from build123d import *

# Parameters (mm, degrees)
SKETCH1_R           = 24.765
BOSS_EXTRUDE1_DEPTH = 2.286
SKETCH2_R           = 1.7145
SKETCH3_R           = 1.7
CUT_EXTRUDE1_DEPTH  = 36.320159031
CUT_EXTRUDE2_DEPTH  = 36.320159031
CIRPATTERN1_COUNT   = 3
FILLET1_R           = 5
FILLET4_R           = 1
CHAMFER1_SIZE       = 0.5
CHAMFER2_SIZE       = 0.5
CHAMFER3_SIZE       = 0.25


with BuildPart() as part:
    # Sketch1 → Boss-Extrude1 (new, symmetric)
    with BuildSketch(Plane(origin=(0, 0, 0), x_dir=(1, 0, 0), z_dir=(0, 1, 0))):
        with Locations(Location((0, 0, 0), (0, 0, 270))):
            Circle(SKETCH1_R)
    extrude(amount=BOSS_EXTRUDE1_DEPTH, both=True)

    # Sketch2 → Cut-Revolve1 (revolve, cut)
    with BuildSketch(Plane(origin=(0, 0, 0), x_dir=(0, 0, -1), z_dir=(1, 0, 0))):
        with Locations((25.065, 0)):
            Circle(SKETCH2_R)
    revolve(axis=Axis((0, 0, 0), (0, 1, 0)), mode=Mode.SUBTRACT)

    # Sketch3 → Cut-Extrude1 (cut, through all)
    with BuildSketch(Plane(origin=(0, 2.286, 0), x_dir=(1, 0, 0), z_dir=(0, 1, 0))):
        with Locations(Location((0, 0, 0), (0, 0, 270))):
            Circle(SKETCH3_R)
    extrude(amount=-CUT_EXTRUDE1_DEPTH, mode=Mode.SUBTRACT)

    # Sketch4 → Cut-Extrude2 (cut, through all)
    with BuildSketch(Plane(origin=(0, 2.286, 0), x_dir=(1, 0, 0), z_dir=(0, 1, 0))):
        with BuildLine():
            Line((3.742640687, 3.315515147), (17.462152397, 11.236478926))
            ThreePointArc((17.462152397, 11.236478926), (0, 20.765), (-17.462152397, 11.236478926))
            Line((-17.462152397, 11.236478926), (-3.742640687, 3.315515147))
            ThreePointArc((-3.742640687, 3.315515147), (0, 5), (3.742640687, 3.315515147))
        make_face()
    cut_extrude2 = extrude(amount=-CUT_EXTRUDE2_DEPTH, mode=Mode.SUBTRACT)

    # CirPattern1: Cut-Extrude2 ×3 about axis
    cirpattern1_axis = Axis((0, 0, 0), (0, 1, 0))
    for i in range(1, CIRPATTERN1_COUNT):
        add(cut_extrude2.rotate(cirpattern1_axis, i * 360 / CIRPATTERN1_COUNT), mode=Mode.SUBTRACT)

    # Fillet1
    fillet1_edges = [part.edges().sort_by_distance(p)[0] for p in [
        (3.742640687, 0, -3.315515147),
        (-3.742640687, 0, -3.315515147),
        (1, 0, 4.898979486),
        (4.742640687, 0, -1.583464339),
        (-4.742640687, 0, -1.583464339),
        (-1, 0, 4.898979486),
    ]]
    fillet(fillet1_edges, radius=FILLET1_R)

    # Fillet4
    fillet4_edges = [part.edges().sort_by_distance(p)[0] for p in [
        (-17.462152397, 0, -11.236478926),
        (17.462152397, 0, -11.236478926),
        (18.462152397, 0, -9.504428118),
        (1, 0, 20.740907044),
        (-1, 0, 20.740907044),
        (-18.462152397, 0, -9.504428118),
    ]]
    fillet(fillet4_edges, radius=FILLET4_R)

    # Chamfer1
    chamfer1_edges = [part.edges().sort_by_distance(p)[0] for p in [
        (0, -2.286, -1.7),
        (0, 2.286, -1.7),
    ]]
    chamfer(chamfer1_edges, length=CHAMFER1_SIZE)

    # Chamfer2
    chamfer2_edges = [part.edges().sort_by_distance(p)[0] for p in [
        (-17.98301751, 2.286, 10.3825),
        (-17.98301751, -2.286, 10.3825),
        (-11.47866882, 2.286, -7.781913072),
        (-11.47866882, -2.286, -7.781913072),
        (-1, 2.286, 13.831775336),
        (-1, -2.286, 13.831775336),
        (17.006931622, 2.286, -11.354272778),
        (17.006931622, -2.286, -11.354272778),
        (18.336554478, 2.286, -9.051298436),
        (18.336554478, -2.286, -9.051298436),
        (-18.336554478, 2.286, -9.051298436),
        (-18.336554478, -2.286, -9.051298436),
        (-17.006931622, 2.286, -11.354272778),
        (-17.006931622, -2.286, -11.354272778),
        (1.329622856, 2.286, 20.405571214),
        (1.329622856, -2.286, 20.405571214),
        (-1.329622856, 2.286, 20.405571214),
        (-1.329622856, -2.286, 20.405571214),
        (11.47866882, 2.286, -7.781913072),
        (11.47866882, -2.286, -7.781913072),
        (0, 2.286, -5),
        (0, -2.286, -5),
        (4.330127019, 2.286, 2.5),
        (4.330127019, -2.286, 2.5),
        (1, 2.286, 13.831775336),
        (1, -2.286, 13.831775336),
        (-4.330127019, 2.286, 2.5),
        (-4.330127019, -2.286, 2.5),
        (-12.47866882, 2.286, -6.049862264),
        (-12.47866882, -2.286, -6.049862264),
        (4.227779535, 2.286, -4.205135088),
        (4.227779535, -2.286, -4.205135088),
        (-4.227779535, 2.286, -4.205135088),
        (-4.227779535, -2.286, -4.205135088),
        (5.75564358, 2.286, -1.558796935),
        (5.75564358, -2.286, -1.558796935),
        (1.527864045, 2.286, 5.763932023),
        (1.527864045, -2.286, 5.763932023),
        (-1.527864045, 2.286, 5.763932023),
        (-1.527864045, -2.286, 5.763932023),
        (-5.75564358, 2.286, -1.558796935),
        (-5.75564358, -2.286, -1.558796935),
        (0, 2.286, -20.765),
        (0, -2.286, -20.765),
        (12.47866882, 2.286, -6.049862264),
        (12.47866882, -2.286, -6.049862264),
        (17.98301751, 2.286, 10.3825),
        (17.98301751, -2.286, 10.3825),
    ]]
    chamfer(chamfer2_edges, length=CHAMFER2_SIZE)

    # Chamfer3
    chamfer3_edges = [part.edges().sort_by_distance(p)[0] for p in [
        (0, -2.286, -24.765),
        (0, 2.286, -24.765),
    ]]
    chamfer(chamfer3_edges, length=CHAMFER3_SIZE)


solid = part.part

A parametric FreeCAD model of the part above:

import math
import FreeCAD as App
import Part
import Sketcher
Q = App.Units.Quantity


def edges_at(feature, points):
    """Names of the edges that pass closest to the given points."""
    edges = feature.Shape.Edges
    near = lambda p: min(range(len(edges)), key=lambda i: edges[i].distToShape(Part.Vertex(*p))[0])
    return sorted({f"Edge{near(p) + 1}" for p in points})

doc = App.newDocument("Part")
body = doc.addObject("PartDesign::Body", "Body")

sketch1 = body.newObject("Sketcher::SketchObject", "Sketch")
sketch1.AttachmentSupport = (doc.getObject("XZ_Plane"), [""])
sketch1.MapMode = "FlatFace"
sketch1.addGeometry(Part.Circle(App.Vector(0, 0, 0), App.Vector(0, 0, 1), 24.765), False)
sketch1.addConstraint(Sketcher.Constraint("Coincident", 0, 3, -1, 1))
sketch1.addConstraint(Sketcher.Constraint("Diameter", 0, 49.53))
pad1 = body.newObject("PartDesign::Pad", "Pad")
pad1.Profile = sketch1
pad1.Length = 4.572
pad1.Midplane = True

sketch2 = body.newObject("Sketcher::SketchObject", "Sketch001")
sketch2.AttachmentSupport = (doc.getObject("YZ_Plane"), [""])
sketch2.MapMode = "FlatFace"
sketch2.addGeometry(Part.Circle(App.Vector(0, -25.065, 0), App.Vector(0, 0, 1), 1.7145), False)
sketch2.addConstraint(Sketcher.Constraint("PointOnObject", 0, 3, -2))
sketch2.addConstraint(Sketcher.Constraint("Diameter", 0, 3.429))
sketch2.addConstraint(Sketcher.Constraint("DistanceY", 0, 3, -1, 1, 25.065))
groove = body.newObject("PartDesign::Groove", "Groove")
groove.Profile = sketch2
groove.ReferenceAxis = (sketch2, ["H_Axis"])
groove.Angle = 360

sketch3 = body.newObject("Sketcher::SketchObject", "Sketch002")
sketch3.AttachmentSupport = (doc.getObject("XZ_Plane"), [""])
sketch3.MapMode = "FlatFace"
sketch3.AttachmentOffset = App.Placement(App.Vector(0, 0, -2.286), App.Rotation())
sketch3.addGeometry(Part.Circle(App.Vector(0, 0, 0), App.Vector(0, 0, 1), 1.7), False)
sketch3.addConstraint(Sketcher.Constraint("Coincident", 0, 3, -1, 1))
sketch3.addConstraint(Sketcher.Constraint("Diameter", 0, 3.4))
pocket1 = body.newObject("PartDesign::Pocket", "Pocket")
pocket1.Profile = sketch3
pocket1.Type = "ThroughAll"
pocket1.Reversed = True

sketch4 = body.newObject("Sketcher::SketchObject", "Sketch003")
sketch4.AttachmentSupport = (doc.getObject("XZ_Plane"), [""])
sketch4.MapMode = "FlatFace"
sketch4.AttachmentOffset = App.Placement(App.Vector(0, 0, -2.286), App.Rotation())
sketch4.addGeometry(Part.LineSegment(App.Vector(3.742641, -3.315515, 0), App.Vector(17.462152, -11.236479, 0)), False)
sketch4.addGeometry(Part.ArcOfCircle(Part.Circle(App.Vector(0, 0, 0), App.Vector(0, 0, 1), 20.765), math.radians(-147.239685), math.radians(-32.760315)), False)
sketch4.addGeometry(Part.LineSegment(App.Vector(-17.462152, -11.236479, 0), App.Vector(-3.742641, -3.315515, 0)), False)
sketch4.addGeometry(Part.ArcOfCircle(Part.Circle(App.Vector(0, 0, 0), App.Vector(0, 0, 1), 5), math.radians(-138.463041), math.radians(-41.536959)), False)
sketch4.addConstraint(Sketcher.Constraint("Coincident", 0, 2, 1, 2))
sketch4.addConstraint(Sketcher.Constraint("Coincident", 1, 1, 2, 1))
sketch4.addConstraint(Sketcher.Constraint("Coincident", 2, 2, 3, 1))
sketch4.addConstraint(Sketcher.Constraint("Coincident", 3, 2, 0, 1))
sketch4.addConstraint(Sketcher.Constraint("Coincident", 1, 3, -1, 1))
sketch4.addConstraint(Sketcher.Constraint("Coincident", 3, 3, -1, 1))
sketch4.addConstraint(Sketcher.Constraint("Horizontal", 0, 2, 1, 1))
sketch4.addConstraint(Sketcher.Constraint("Horizontal", 2, 2, 3, 2))
sketch4.addConstraint(Sketcher.Constraint("Radius", 3, 5.0))
sketch4.addConstraint(Sketcher.Constraint("Angle", 0, Q("-30 deg")))
sketch4.addConstraint(Sketcher.Constraint("Radius", 1, 20.765))
sketch4.addConstraint(Sketcher.Constraint("DistanceY", 0, 2, -1, 1, 11.236479))
pocket2 = body.newObject("PartDesign::Pocket", "Pocket001")
pocket2.Profile = sketch4
pocket2.Type = "ThroughAll"
pocket2.Reversed = True
doc.recompute()

polarpattern = body.newObject("PartDesign::PolarPattern", "PolarPattern")
polarpattern.Originals = [pocket2]
polarpattern.Axis = (doc.getObject("Y_Axis"), [""])
polarpattern.Angle = 360
polarpattern.Occurrences = 3
body.Tip = polarpattern
doc.recompute()

fillet = body.newObject("PartDesign::Fillet", "Fillet")
fillet.Base = (polarpattern, edges_at(polarpattern, [
    (3.743, 0, -3.316),
    (-3.743, 0, -3.316),
    (1, 0, 4.899),
    (4.743, 0, -1.583),
    (-4.743, 0, -1.583),
    (-1, 0, 4.899),
]))
fillet.Radius = 5
doc.recompute()

fillet2 = body.newObject("PartDesign::Fillet", "Fillet001")
fillet2.Base = (fillet, edges_at(fillet, [
    (-17.462, 0, -11.236),
    (17.462, 0, -11.236),
    (18.462, 0, -9.504),
    (1, 0, 20.741),
    (-1, 0, 20.741),
    (-18.462, 0, -9.504),
]))
fillet2.Radius = 1
doc.recompute()

chamfer = body.newObject("PartDesign::Chamfer", "Chamfer")
chamfer.Base = (fillet2, edges_at(fillet2, [(0, -2.286, -1.7), (0, 2.286, -1.7)]))
chamfer.Size = 0.5
doc.recompute()

chamfer2 = body.newObject("PartDesign::Chamfer", "Chamfer001")
chamfer2.Base = (chamfer, edges_at(chamfer, [
    (-17.983, 2.286, 10.383),
    (-17.983, -2.286, 10.383),
    (-11.479, 2.286, -7.782),
    (-11.479, -2.286, -7.782),
    (-1, 2.286, 13.832),
    (-1, -2.286, 13.832),
    (17.007, 2.286, -11.354),
    (17.007, -2.286, -11.354),
    (18.337, 2.286, -9.051),
    (18.337, -2.286, -9.051),
    (-18.337, 2.286, -9.051),
    (-18.337, -2.286, -9.051),
    (-17.007, 2.286, -11.354),
    (-17.007, -2.286, -11.354),
    (1.33, 2.286, 20.406),
    (1.33, -2.286, 20.406),
    (-1.33, 2.286, 20.406),
    (-1.33, -2.286, 20.406),
    (11.479, 2.286, -7.782),
    (11.479, -2.286, -7.782),
    (0, 2.286, -5),
    (0, -2.286, -5),
    (4.33, 2.286, 2.5),
    (4.33, -2.286, 2.5),
    (1, 2.286, 13.832),
    (1, -2.286, 13.832),
    (-4.33, 2.286, 2.5),
    (-4.33, -2.286, 2.5),
    (-12.479, 2.286, -6.05),
    (-12.479, -2.286, -6.05),
    (4.228, 2.286, -4.205),
    (4.228, -2.286, -4.205),
    (-4.228, 2.286, -4.205),
    (-4.228, -2.286, -4.205),
    (5.756, 2.286, -1.559),
    (5.756, -2.286, -1.559),
    (1.528, 2.286, 5.764),
    (1.528, -2.286, 5.764),
    (-1.528, 2.286, 5.764),
    (-1.528, -2.286, 5.764),
    (-5.756, 2.286, -1.559),
    (-5.756, -2.286, -1.559),
    (0, 2.286, -20.765),
    (0, -2.286, -20.765),
    (12.479, 2.286, -6.05),
    (12.479, -2.286, -6.05),
    (17.983, 2.286, 10.383),
    (17.983, -2.286, 10.383),
]))
chamfer2.Size = 0.5
doc.recompute()

chamfer3 = body.newObject("PartDesign::Chamfer", "Chamfer002")
chamfer3.Base = (chamfer2, edges_at(chamfer2, [(0, -2.286, -24.765), (0, 2.286, -24.765)]))
chamfer3.Size = 0.25

doc.recompute()
